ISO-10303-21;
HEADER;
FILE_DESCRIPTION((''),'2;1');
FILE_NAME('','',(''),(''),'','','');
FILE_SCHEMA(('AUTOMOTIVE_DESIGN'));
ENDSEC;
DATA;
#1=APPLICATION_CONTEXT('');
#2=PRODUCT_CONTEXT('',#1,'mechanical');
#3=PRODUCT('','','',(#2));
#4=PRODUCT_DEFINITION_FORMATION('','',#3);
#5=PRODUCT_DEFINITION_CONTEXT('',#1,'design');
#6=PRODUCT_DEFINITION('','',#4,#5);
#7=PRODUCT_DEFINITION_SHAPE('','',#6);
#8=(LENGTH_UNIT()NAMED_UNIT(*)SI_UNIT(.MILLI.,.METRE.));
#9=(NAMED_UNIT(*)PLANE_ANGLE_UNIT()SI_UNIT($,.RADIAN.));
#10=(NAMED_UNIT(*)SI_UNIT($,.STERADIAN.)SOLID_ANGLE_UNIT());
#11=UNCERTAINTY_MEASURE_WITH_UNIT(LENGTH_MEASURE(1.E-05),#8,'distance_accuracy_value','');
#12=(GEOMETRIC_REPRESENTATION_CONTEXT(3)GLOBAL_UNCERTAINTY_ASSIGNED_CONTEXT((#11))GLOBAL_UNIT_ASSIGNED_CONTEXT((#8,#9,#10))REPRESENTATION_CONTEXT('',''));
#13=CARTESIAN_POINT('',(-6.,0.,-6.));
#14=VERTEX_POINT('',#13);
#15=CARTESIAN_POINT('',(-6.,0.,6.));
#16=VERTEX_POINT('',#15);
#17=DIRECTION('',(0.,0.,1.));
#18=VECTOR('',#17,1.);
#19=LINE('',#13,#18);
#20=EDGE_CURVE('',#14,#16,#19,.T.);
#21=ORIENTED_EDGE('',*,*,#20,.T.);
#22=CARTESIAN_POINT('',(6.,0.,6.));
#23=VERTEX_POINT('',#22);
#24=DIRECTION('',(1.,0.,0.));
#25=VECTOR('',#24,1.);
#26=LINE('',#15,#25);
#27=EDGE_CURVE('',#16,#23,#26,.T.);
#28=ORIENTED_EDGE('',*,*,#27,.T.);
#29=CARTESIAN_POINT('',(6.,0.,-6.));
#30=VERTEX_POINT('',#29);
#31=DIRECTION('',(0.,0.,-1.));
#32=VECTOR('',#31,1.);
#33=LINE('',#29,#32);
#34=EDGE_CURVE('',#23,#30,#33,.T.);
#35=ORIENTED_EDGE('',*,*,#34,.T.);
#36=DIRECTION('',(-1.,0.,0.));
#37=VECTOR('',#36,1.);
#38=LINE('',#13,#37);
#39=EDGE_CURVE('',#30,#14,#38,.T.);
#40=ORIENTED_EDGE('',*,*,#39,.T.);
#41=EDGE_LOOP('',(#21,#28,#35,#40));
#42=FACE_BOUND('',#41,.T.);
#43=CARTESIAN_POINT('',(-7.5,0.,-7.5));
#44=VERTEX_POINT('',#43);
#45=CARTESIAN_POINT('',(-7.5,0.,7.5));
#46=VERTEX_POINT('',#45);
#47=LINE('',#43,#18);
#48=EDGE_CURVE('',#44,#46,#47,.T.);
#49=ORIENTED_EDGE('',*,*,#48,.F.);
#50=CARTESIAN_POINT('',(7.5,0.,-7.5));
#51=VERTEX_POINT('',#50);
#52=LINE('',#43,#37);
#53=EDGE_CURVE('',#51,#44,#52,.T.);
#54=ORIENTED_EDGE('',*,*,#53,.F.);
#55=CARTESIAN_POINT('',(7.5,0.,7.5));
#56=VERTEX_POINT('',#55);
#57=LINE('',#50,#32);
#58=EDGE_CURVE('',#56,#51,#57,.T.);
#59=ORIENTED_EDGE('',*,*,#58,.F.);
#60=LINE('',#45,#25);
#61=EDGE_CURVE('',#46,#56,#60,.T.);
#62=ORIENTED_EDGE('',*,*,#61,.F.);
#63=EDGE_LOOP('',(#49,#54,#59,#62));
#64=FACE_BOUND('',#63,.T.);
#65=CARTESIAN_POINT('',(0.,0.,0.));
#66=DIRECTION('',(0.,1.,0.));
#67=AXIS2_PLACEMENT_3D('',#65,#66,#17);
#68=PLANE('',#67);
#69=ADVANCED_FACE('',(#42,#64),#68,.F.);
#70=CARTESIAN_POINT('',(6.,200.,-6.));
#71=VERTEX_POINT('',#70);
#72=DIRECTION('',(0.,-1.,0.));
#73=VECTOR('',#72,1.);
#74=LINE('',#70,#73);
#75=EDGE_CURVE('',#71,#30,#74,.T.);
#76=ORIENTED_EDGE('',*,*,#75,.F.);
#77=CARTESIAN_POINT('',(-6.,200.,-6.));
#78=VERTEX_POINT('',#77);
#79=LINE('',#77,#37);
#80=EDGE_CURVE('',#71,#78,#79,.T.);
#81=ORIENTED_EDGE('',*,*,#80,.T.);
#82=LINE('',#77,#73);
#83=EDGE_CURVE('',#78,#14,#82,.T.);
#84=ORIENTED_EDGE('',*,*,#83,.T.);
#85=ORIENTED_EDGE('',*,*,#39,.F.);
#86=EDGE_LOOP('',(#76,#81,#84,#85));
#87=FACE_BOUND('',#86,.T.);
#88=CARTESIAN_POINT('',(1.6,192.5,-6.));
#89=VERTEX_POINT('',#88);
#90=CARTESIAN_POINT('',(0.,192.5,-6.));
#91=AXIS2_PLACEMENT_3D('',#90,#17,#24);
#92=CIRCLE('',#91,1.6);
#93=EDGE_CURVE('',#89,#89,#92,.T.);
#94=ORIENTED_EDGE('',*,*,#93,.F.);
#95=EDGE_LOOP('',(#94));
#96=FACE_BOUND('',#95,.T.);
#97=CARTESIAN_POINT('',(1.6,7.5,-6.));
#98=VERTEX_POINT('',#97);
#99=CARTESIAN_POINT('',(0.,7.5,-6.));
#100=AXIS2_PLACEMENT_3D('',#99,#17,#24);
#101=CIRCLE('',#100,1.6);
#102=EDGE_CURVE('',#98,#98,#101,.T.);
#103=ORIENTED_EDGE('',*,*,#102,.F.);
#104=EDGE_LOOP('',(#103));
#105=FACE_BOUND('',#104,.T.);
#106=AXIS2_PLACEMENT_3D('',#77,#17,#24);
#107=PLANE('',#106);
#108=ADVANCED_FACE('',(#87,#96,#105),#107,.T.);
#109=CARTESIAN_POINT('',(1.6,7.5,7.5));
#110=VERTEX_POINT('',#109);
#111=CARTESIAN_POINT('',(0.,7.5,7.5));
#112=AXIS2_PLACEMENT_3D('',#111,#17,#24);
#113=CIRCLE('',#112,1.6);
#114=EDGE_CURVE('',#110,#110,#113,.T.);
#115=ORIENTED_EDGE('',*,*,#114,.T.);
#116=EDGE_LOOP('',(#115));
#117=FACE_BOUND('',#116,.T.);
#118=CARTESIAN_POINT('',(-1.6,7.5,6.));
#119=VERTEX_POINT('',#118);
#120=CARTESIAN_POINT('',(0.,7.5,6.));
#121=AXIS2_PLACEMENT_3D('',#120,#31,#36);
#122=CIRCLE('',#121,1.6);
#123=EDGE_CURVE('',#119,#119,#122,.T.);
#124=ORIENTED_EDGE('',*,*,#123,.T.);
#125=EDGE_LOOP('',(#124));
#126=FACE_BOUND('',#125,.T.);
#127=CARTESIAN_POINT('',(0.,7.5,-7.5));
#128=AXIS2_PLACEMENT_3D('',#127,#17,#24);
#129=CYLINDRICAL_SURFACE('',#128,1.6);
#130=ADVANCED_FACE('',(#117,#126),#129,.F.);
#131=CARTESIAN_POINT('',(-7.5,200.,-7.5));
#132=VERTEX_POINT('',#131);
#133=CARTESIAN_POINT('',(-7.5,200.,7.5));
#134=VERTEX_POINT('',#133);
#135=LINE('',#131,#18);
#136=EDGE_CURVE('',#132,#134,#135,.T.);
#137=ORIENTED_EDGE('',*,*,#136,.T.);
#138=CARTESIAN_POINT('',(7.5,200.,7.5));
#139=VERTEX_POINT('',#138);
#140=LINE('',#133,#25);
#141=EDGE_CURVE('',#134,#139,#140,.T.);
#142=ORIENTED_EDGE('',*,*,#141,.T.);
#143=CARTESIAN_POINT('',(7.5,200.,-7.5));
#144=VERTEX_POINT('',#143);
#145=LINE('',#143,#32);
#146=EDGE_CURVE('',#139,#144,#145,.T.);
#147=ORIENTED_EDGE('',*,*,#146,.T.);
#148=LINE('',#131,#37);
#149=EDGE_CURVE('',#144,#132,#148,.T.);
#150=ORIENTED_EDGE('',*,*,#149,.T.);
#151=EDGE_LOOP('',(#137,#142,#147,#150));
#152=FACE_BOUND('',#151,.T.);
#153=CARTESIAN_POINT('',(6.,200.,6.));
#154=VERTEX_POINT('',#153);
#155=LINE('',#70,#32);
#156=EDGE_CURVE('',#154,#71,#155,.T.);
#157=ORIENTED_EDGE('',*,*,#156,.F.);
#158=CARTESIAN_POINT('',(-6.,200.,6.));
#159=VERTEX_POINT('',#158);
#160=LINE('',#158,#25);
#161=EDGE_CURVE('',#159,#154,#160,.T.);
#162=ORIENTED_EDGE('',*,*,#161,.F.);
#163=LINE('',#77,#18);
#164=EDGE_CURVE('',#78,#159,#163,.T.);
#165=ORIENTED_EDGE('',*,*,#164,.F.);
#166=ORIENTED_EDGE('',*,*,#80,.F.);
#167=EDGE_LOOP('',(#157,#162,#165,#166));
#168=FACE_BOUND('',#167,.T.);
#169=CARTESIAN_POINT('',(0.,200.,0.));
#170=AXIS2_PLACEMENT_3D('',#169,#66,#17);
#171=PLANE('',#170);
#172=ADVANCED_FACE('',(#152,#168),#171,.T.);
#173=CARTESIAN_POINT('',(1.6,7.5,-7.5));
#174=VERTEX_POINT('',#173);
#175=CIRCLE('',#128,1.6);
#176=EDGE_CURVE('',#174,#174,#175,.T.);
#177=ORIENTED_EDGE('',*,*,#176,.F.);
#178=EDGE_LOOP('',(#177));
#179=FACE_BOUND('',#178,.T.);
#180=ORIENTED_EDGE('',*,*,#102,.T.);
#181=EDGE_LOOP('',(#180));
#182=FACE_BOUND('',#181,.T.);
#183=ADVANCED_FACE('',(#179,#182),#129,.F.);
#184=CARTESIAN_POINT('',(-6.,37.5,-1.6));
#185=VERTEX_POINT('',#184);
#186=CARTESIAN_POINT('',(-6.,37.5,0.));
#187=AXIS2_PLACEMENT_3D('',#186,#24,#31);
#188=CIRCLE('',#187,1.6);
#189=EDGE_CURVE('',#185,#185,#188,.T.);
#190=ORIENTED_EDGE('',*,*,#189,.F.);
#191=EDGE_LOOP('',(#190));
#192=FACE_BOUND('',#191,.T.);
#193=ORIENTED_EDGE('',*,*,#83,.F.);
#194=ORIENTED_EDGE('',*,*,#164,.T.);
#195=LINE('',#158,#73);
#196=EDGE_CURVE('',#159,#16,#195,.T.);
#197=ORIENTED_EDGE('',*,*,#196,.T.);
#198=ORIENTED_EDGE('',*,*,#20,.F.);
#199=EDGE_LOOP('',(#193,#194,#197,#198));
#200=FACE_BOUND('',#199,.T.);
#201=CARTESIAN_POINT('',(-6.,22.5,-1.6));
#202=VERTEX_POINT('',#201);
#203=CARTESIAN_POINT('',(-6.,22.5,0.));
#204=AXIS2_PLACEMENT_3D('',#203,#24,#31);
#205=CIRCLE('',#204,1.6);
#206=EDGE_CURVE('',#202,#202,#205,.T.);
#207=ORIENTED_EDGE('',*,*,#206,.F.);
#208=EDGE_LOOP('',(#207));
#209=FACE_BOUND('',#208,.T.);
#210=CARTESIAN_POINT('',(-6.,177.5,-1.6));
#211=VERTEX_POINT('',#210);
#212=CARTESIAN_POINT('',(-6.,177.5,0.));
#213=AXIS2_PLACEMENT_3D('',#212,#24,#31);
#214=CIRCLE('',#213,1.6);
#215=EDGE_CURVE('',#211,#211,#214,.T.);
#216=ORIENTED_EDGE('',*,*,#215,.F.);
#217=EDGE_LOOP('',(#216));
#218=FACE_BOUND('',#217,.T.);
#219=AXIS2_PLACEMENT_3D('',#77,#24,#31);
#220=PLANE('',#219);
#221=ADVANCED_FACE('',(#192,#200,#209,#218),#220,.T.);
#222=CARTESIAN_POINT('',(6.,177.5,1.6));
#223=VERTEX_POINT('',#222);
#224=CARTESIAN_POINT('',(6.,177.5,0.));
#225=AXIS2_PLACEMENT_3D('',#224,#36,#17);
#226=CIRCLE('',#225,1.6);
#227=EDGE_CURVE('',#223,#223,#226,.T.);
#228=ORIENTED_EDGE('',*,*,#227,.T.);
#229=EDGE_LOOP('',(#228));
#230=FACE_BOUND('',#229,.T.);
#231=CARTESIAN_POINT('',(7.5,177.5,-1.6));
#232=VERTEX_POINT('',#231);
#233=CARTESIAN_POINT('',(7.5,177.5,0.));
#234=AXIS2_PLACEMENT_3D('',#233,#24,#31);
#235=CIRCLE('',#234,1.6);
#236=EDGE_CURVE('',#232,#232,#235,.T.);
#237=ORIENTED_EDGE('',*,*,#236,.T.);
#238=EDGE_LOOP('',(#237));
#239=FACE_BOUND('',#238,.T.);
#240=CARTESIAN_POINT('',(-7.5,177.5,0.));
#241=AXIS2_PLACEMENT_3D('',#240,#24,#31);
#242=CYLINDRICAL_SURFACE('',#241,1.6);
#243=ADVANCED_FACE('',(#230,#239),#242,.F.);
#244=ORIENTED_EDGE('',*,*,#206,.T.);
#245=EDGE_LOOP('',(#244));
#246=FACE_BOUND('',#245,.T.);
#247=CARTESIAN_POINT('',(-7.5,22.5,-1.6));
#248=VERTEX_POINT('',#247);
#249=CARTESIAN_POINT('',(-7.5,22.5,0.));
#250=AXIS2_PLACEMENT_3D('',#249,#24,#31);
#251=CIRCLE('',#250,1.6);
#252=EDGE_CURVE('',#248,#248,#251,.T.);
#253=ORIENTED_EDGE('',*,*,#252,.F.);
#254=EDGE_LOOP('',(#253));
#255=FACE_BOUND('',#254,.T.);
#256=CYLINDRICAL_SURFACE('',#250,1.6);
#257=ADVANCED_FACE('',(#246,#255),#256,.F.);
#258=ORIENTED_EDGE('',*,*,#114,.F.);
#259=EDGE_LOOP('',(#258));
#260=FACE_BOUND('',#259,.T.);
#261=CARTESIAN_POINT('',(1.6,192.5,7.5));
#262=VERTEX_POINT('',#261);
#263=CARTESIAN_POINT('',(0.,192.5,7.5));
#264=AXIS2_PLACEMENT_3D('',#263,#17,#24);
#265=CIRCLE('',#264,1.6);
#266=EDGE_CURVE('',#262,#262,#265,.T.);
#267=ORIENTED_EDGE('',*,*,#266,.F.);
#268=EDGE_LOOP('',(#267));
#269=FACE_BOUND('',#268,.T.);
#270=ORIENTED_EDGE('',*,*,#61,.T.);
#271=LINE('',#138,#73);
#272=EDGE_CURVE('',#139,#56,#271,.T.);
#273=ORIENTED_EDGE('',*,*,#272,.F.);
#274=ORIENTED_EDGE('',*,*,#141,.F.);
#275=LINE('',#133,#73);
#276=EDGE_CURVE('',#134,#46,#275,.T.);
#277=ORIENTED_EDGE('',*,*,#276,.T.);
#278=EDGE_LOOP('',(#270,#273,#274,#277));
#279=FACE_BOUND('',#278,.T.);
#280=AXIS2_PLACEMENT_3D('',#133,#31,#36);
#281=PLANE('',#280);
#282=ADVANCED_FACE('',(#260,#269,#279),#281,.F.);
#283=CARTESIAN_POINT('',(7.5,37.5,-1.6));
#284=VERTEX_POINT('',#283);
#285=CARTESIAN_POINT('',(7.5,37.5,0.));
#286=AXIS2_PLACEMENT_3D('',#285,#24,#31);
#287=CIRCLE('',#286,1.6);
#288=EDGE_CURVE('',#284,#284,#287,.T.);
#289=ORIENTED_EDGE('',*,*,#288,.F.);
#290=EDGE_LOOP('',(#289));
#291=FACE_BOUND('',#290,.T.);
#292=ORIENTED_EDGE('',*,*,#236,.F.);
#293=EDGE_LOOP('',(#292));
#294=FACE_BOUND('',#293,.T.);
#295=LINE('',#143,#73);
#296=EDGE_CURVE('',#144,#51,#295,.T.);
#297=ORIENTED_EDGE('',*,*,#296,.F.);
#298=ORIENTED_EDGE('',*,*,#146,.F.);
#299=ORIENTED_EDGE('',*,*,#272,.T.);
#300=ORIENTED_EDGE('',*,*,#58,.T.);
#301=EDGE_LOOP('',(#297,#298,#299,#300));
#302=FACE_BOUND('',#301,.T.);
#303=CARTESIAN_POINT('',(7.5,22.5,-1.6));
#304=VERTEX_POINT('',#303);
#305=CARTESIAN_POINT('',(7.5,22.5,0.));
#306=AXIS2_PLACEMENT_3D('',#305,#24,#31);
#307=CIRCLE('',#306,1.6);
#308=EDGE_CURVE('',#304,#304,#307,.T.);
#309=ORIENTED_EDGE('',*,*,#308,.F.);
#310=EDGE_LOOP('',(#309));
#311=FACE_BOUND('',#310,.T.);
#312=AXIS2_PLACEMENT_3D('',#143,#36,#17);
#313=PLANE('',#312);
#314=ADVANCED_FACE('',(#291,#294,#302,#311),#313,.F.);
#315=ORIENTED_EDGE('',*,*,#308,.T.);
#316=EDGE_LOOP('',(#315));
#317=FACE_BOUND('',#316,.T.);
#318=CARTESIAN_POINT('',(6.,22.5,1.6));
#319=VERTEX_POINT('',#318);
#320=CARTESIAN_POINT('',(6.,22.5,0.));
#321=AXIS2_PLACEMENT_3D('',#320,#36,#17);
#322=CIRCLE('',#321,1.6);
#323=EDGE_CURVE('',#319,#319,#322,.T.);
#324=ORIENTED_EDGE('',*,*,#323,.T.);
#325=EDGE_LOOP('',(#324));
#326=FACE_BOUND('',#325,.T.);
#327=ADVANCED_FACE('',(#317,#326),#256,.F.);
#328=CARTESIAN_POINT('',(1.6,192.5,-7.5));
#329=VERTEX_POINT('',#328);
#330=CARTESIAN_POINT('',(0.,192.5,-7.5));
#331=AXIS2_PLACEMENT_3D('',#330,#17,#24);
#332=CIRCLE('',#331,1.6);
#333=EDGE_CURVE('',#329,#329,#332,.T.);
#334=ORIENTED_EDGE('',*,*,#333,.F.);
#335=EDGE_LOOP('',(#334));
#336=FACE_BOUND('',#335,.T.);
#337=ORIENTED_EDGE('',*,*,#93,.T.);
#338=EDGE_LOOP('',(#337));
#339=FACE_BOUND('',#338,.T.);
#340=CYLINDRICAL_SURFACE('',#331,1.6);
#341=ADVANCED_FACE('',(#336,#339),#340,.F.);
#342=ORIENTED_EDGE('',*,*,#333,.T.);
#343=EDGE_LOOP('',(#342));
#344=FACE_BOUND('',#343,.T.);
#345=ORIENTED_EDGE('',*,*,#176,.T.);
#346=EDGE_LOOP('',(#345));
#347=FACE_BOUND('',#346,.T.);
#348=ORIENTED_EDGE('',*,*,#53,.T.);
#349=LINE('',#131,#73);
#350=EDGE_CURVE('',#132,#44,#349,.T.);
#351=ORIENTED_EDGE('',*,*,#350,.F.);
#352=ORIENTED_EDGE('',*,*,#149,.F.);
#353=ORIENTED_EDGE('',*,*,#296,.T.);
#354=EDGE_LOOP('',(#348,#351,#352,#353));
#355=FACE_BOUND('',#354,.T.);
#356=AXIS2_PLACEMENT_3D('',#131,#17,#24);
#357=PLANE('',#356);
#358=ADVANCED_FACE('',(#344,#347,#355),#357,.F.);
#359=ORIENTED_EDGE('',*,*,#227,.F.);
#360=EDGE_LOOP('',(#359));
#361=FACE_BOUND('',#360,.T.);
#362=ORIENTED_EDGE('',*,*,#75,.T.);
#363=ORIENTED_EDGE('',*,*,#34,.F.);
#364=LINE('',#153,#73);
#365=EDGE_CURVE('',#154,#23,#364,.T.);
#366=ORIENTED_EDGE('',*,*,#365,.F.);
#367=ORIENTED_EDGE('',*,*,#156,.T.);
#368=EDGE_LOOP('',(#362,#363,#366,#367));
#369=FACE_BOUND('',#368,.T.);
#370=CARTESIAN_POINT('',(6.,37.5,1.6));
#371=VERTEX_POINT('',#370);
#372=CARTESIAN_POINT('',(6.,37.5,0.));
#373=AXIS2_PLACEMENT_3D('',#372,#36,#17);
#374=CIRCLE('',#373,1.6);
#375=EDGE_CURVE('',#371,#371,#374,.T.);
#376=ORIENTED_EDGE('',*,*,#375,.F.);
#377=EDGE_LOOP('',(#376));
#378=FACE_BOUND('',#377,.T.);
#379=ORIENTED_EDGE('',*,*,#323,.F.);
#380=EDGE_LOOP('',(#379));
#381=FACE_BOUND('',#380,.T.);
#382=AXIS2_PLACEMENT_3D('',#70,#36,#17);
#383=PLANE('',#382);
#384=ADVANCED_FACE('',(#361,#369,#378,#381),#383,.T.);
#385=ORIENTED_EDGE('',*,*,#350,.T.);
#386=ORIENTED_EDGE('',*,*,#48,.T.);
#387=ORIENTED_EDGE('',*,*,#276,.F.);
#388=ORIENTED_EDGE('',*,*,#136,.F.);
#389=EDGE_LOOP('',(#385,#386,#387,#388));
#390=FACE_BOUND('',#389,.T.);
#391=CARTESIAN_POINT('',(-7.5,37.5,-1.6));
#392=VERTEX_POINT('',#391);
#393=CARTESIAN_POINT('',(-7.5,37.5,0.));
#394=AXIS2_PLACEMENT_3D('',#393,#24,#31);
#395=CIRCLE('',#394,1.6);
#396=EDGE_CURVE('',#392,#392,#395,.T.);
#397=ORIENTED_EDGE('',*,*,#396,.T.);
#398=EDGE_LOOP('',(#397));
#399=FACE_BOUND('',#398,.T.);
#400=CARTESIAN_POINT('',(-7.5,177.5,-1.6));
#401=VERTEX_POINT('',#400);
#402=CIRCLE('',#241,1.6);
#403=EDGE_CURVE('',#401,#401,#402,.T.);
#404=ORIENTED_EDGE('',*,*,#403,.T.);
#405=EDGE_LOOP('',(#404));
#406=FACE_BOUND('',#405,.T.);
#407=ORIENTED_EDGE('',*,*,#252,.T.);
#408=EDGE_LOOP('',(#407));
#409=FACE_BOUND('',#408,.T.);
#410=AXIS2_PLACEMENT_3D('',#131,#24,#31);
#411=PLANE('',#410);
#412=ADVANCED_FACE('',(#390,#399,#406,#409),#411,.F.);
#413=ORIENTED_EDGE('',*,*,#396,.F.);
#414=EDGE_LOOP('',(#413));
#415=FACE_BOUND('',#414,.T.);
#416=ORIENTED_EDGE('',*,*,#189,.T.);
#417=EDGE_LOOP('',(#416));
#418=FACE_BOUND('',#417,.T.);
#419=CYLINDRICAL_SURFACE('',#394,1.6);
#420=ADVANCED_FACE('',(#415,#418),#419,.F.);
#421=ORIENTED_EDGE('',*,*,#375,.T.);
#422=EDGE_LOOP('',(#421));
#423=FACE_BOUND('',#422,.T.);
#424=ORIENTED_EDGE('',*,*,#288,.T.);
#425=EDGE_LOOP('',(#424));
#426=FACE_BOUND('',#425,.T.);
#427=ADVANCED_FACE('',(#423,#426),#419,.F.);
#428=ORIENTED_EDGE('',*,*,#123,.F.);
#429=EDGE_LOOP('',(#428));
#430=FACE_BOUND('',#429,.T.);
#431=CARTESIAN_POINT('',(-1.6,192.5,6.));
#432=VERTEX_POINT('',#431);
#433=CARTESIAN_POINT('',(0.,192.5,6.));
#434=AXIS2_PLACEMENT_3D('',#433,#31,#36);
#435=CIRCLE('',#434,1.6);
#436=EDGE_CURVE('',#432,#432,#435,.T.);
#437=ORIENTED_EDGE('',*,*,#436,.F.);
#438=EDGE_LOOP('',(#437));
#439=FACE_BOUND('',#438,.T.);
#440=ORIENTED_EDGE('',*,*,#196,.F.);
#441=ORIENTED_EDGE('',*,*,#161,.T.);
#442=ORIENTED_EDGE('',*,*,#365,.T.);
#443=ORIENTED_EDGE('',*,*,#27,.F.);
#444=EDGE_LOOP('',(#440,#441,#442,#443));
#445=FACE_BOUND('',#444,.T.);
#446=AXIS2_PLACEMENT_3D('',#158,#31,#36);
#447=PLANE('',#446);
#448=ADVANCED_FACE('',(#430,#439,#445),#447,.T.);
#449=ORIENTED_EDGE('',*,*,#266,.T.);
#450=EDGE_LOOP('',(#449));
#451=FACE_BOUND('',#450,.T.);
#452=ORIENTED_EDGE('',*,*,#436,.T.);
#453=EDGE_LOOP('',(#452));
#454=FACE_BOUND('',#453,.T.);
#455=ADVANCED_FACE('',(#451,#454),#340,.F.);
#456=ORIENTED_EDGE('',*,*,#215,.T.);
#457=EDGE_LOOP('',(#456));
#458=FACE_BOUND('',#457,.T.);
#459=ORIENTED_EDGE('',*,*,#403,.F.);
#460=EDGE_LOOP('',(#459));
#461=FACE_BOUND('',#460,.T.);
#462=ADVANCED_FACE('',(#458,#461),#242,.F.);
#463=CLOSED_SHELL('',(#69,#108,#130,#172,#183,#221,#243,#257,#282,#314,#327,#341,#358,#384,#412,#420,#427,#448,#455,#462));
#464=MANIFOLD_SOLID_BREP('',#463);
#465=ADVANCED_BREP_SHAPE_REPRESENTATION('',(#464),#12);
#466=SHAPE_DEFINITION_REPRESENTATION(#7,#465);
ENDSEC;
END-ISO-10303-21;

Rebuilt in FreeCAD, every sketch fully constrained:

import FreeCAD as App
import Part
import Sketcher

V = App.Vector
Q = App.Units.Quantity


def add_polygon(sketch, points):
    """Adds a closed chain of lines whose ends are joined by coincident constraints."""
    first, n = sketch.GeometryCount, len(points)
    for a, b in zip(points, points[1:] + points[:1]):
        sketch.addGeometry(Part.LineSegment(App.Vector(*a, 0), App.Vector(*b, 0)), False)
    for i in range(n):
        sketch.addConstraint(Sketcher.Constraint("Coincident", first + i, 2, first + (i + 1) % n, 1))

doc = App.newDocument("Part")
params = doc.addObject("Spreadsheet::Sheet", "Params")
for row, (alias, value) in enumerate([
    ("sketch1_width", "15 mm"),
    ("sketch1_width2", "12 mm"),
    ("pad1_length", "200 mm"),
    ("sketch2_diameter", "3.2 mm"),
    ("sketch3_diameter", "3.2 mm"),
], start=1):
    params.set(f"A{row}", alias)
    params.set(f"B{row}", "=" + value)
    params.setAlias(f"B{row}", alias)

body = doc.addObject("PartDesign::Body", "Body")

sketch1 = body.newObject("Sketcher::SketchObject", "Sketch")
sketch1.AttachmentSupport = (doc.getObject("XZ_Plane"), [""])
sketch1.MapMode = "FlatFace"
add_polygon(sketch1, [(-8, -8), (-8, 8), (8, 8), (8, -8)])
add_polygon(sketch1, [(6, 6), (-6, 6), (-6, -6), (6, -6)])
sketch1.addConstraint(Sketcher.Constraint("Vertical", 0))
sketch1.addConstraint(Sketcher.Constraint("Horizontal", 1))
sketch1.addConstraint(Sketcher.Constraint("Vertical", 2))
sketch1.addConstraint(Sketcher.Constraint("Horizontal", 3))
sketch1.addConstraint(Sketcher.Constraint("Horizontal", 4))
sketch1.addConstraint(Sketcher.Constraint("Vertical", 5))
sketch1.addConstraint(Sketcher.Constraint("Horizontal", 6))
sketch1.addConstraint(Sketcher.Constraint("Vertical", 7))
sketch1.addConstraint(Sketcher.Constraint("Symmetric", 0, 2, 2, 2, -1, 1))
sketch1.addConstraint(Sketcher.Constraint("Symmetric", 4, 2, 6, 2, -1, 1))
sketch1.addConstraint(Sketcher.Constraint("Equal", 3, 0))
sketch1.addConstraint(Sketcher.Constraint("Equal", 6, 5))
sketch1.addConstraint(Sketcher.Constraint("DistanceX", 1, 1, 1, 2, Q("15 mm")))
sketch1.addConstraint(Sketcher.Constraint("DistanceX", 4, 2, 4, 1, Q("12 mm")))
sketch1.setExpression("Constraints[20]", "Params.sketch1_width")
sketch1.setExpression("Constraints[21]", "Params.sketch1_width2")
pad1 = body.newObject("PartDesign::Pad", "Pad")
pad1.Profile = sketch1
pad1.setExpression("Length", "Params.pad1_length")
pad1.Reversed = True

sketch2 = body.newObject("Sketcher::SketchObject", "Sketch001")
sketch2.AttachmentSupport = (doc.getObject("XY_Plane"), [""])
sketch2.MapMode = "FlatFace"
sketch2.AttachmentOffset = App.Placement(V(0, 0, 7.5), App.Rotation())
sketch2.addGeometry(Part.Circle(V(0, 192.5, 0), V(0, 0, 1), 1.6), False)
sketch2.addGeometry(Part.Circle(V(0, 7.5, 0), V(0, 0, 1), 1.6), False)
sketch2.addConstraint(Sketcher.Constraint("Equal", 0, 1))
sketch2.addConstraint(Sketcher.Constraint("PointOnObject", 0, 3, -2))
sketch2.addConstraint(Sketcher.Constraint("PointOnObject", 1, 3, -2))
sketch2.addConstraint(Sketcher.Constraint("Diameter", 0, Q("3.2 mm")))
sketch2.addConstraint(Sketcher.Constraint("DistanceY", 1, 3, 0, 3, Q("185 mm")))
sketch2.addConstraint(Sketcher.Constraint("DistanceY", -1, 1, 0, 3, Q("192.5 mm")))
sketch2.setExpression("Constraints[3]", "Params.sketch2_diameter")
pocket1 = body.newObject("PartDesign::Pocket", "Pocket")
pocket1.Profile = sketch2
pocket1.Type = "ThroughAll"

sketch3 = body.newObject("Sketcher::SketchObject", "Sketch002")
sketch3.AttachmentSupport = (doc.getObject("YZ_Plane"), [""])
sketch3.MapMode = "FlatFace"
sketch3.AttachmentOffset = App.Placement(V(0, 0, 7.5), App.Rotation())
sketch3.addGeometry(Part.Circle(V(177.5, 0, 0), V(0, 0, 1), 1.6), False)
sketch3.addGeometry(Part.Circle(V(22.5, 0, 0), V(0, 0, 1), 1.6), False)
sketch3.addGeometry(Part.Circle(V(37.5, 0, 0), V(0, 0, 1), 1.6), False)
sketch3.addConstraint(Sketcher.Constraint("Equal", 0, 1))
sketch3.addConstraint(Sketcher.Constraint("Equal", 1, 2))
sketch3.addConstraint(Sketcher.Constraint("PointOnObject", 0, 3, -1))
sketch3.addConstraint(Sketcher.Constraint("PointOnObject", 1, 3, -1))
sketch3.addConstraint(Sketcher.Constraint("PointOnObject", 2, 3, -1))
sketch3.addConstraint(Sketcher.Constraint("Diameter", 0, Q("3.2 mm")))
sketch3.addConstraint(Sketcher.Constraint("DistanceX", 1, 3, 0, 3, Q("155 mm")))
sketch3.addConstraint(Sketcher.Constraint("DistanceX", 1, 3, 2, 3, Q("15 mm")))
sketch3.addConstraint(Sketcher.Constraint("DistanceX", -1, 1, 0, 3, Q("177.5 mm")))
sketch3.setExpression("Constraints[5]", "Params.sketch3_diameter")
pocket2 = body.newObject("PartDesign::Pocket", "Pocket001")
pocket2.Profile = sketch3
pocket2.Type = "ThroughAll"

doc.recompute()
